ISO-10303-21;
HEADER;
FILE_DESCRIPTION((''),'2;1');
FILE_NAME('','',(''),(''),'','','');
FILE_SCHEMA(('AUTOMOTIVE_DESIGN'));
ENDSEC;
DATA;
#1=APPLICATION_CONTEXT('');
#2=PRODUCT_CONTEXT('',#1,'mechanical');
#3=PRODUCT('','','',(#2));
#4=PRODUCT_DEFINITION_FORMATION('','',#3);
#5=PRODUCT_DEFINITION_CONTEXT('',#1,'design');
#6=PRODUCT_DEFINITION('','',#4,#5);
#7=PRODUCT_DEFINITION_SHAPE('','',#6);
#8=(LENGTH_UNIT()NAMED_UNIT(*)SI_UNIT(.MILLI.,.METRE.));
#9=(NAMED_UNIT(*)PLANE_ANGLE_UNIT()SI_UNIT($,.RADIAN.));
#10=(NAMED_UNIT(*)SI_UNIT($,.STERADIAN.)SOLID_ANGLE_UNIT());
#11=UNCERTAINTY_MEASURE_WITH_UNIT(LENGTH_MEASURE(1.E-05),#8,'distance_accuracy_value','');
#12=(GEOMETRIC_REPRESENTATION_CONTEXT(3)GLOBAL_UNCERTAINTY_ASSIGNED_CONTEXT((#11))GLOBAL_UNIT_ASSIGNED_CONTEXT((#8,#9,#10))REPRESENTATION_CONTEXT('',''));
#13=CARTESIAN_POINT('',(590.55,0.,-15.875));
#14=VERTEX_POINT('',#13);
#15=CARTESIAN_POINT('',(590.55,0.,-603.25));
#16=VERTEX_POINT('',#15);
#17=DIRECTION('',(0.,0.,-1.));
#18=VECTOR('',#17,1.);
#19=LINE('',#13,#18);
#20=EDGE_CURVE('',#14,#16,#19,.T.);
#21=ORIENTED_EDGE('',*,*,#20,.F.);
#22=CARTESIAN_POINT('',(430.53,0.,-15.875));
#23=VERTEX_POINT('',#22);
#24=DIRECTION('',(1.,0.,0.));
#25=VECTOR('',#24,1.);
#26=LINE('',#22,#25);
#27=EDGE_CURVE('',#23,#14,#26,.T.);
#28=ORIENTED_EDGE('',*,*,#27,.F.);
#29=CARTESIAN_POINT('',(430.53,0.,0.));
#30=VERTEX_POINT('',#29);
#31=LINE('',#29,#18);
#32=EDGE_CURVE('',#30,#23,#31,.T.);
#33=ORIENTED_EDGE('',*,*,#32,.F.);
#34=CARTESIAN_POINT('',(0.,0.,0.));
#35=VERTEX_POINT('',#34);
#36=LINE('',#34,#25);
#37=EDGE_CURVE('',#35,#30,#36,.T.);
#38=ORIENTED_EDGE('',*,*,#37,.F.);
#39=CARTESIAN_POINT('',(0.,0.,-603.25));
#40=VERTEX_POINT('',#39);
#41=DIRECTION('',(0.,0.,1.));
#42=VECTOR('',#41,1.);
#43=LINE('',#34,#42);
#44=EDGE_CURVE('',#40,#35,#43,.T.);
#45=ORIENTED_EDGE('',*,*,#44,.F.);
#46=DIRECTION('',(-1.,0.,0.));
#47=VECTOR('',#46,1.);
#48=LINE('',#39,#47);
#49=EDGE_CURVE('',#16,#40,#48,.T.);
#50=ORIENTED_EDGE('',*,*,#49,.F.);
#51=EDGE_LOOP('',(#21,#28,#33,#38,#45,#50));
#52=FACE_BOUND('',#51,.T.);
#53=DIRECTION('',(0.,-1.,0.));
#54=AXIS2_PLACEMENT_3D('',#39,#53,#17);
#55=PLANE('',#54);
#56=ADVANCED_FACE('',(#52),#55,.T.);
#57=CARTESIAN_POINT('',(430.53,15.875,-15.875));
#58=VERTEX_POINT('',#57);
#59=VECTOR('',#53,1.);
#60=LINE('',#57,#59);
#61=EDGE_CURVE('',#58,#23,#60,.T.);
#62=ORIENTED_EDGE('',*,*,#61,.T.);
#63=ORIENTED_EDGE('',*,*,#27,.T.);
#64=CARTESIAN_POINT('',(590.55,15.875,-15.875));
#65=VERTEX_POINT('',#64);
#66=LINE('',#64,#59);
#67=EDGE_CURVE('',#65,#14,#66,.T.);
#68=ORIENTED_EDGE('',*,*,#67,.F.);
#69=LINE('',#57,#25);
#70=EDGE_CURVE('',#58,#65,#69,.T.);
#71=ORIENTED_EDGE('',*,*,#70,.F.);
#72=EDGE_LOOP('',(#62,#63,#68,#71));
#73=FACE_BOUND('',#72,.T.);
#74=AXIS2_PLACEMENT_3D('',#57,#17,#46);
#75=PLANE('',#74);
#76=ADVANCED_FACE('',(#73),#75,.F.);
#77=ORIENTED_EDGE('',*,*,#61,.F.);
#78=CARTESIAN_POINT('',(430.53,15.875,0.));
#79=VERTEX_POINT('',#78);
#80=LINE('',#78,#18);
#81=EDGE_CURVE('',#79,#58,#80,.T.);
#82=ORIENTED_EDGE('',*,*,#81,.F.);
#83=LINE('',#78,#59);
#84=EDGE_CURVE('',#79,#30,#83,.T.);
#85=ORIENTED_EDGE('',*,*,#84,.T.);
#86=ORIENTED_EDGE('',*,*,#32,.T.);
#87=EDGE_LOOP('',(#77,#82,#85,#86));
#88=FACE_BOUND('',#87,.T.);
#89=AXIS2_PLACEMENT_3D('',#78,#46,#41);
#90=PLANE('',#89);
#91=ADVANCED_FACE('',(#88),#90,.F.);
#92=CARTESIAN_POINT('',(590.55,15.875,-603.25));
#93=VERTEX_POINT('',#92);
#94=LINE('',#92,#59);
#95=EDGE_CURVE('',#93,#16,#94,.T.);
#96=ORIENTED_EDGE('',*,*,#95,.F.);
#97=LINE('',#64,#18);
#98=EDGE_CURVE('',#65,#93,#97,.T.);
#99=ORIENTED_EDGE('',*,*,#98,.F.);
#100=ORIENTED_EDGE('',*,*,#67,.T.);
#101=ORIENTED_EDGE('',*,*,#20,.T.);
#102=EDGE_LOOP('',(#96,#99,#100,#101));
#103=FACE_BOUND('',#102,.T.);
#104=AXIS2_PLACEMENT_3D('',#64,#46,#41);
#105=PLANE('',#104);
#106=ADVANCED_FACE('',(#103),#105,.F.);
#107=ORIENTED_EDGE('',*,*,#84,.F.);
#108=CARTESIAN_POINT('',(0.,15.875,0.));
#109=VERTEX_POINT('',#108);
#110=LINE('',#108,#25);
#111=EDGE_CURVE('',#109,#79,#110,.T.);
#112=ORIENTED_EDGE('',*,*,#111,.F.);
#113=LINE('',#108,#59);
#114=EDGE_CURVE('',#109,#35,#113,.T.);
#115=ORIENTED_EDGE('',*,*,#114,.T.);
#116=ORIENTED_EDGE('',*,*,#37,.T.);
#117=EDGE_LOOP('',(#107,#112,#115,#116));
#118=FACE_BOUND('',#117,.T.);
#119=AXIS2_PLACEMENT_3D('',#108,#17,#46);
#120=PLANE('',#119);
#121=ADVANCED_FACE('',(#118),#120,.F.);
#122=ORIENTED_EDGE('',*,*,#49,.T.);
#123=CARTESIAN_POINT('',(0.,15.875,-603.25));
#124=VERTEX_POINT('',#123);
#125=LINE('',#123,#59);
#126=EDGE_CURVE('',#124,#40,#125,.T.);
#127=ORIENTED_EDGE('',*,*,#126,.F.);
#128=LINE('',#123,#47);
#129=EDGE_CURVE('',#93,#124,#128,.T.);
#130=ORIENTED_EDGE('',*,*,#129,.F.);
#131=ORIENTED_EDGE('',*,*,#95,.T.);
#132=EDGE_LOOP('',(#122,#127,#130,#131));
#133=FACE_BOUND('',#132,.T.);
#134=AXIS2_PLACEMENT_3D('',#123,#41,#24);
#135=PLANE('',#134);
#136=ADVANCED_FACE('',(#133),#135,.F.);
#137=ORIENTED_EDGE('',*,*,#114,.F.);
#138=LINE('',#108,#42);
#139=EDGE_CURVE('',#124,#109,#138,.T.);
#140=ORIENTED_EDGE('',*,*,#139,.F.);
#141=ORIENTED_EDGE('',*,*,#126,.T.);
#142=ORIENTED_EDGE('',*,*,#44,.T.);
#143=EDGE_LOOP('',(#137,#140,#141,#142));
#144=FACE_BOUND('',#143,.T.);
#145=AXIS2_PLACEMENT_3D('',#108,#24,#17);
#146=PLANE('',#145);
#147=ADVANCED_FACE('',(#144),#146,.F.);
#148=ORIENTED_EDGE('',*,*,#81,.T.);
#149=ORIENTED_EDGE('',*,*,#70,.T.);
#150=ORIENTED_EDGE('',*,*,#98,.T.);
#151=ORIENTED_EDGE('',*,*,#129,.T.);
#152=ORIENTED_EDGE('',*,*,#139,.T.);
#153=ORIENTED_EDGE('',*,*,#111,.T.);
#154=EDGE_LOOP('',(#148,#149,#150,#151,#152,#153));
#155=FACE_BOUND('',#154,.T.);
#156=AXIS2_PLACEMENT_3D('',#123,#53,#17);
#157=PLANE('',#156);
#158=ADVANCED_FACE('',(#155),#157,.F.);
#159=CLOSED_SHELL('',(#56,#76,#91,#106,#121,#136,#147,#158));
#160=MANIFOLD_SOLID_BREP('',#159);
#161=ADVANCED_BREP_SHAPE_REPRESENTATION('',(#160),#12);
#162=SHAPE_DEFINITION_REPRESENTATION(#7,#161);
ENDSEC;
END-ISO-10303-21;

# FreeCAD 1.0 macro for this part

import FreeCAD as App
import Part
import Sketcher

V = App.Vector
Q = App.Units.Quantity


def add_polygon(sketch, points):
    """Adds a closed chain of lines whose ends are joined by coincident constraints."""
    first, n = sketch.GeometryCount, len(points)
    for a, b in zip(points, points[1:] + points[:1]):
        sketch.addGeometry(Part.LineSegment(App.Vector(*a, 0), App.Vector(*b, 0)), False)
    for i in range(n):
        sketch.addConstraint(Sketcher.Constraint("Coincident", first + i, 2, first + (i + 1) % n, 1))

doc = App.newDocument("Part")
body = doc.addObject("PartDesign::Body", "Body")

# Sketch on XZ plane
sketch1 = doc.addObject("Sketcher::SketchObject", "Sketch")
body.addObject(sketch1)
sketch1.AttachmentSupport = (doc.XZ_Plane, [""])
sketch1.MapMode = "FlatFace"
add_polygon(sketch1, [(431, 0), (431, -16), (591, -16), (591, -603), (0, -603), (0, 0)])  # lines 0-5
sketch1.addConstraint([
    Sketcher.Constraint("Vertical", 0),
    Sketcher.Constraint("Horizontal", 1),
    Sketcher.Constraint("Vertical", 2),
    Sketcher.Constraint("Horizontal", 3),
    Sketcher.Constraint("Vertical", 4),
    Sketcher.Constraint("Horizontal", 5),
    Sketcher.Constraint("Coincident", 4, 2, -1, 1),
    Sketcher.Constraint("DistanceX", 1, 1, 1, 2, Q("6.3 in")),
    Sketcher.Constraint("DistanceX", 3, 2, 3, 1, Q("23.25 in")),
    Sketcher.Constraint("DistanceY", 4, 1, 4, 2, Q("23.75 in")),
    Sketcher.Constraint("DistanceY", 0, 2, 0, 1, Q("0.625 in")),
])
pad1 = doc.addObject("PartDesign::Pad", "Pad")
body.addObject(pad1)
pad1.Profile = sketch1
pad1.Length = Q("0.625 in")
pad1.Reversed = True

doc.recompute()
